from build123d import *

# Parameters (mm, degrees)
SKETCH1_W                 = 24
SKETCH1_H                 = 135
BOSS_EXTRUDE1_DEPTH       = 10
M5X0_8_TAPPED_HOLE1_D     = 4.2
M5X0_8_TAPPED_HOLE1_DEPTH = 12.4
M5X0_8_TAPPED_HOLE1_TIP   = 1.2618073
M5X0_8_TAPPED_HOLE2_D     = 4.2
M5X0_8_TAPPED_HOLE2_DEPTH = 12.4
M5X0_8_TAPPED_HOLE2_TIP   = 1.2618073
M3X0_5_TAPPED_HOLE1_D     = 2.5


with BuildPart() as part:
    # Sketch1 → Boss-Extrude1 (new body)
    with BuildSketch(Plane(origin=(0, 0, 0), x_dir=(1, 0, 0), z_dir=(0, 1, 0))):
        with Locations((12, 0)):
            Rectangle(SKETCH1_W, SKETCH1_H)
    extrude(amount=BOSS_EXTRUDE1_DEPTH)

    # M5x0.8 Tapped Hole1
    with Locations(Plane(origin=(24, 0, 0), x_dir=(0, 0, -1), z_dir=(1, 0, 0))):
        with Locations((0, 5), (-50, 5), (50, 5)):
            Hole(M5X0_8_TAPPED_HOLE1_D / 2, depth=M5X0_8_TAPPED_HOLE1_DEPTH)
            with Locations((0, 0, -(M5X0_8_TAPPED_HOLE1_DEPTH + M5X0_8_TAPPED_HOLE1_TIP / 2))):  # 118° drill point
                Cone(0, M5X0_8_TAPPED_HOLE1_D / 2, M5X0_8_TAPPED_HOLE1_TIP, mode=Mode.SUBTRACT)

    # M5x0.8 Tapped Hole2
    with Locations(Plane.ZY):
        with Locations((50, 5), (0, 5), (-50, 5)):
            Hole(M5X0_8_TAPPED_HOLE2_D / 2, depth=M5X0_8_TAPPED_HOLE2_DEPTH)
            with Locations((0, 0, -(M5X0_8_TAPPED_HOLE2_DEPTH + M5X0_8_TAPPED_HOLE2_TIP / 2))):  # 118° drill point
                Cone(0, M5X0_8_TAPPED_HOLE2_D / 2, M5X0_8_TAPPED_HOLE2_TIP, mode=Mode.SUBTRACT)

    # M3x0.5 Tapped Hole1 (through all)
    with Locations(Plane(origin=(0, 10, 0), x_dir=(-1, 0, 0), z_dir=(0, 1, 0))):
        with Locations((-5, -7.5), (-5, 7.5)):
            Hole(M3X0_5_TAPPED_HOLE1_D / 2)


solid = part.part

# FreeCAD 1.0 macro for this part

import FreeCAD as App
import Part
import Sketcher

V = App.Vector


def add_polygon(sketch, points):
    """Adds a closed chain of lines whose ends are joined by coincident constraints."""
    first, n = sketch.GeometryCount, len(points)
    for a, b in zip(points, points[1:] + points[:1]):
        sketch.addGeometry(Part.LineSegment(App.Vector(*a, 0), App.Vector(*b, 0)), False)
    for i in range(n):
        sketch.addConstraint(Sketcher.Constraint("Coincident", first + i, 2, first + (i + 1) % n, 1))

doc = App.newDocument("Part")
body = doc.addObject("PartDesign::Body", "Body")

# Sketch on XZ plane
sketch1 = doc.addObject("Sketcher::SketchObject", "Sketch")
body.addObject(sketch1)
sketch1.AttachmentSupport = (doc.XZ_Plane, [""])
sketch1.MapMode = "FlatFace"
add_polygon(sketch1, [(0, -68), (0, 68), (24, 68), (24, -68)])  # lines 0-3
sketch1.addConstraint(Sketcher.Constraint("Vertical", 0))
sketch1.addConstraint(Sketcher.Constraint("Horizontal", 1))
sketch1.addConstraint(Sketcher.Constraint("Vertical", 2))
sketch1.addConstraint(Sketcher.Constraint("Horizontal", 3))
sketch1.addConstraint(Sketcher.Constraint("Symmetric", 0, 2, 3, 2, -1, 1))
sketch1.addConstraint(Sketcher.Constraint("DistanceX", 1, 1, 1, 2, 24.0))
sketch1.addConstraint(Sketcher.Constraint("DistanceY", 0, 1, 0, 2, 135.0))
pad1 = doc.addObject("PartDesign::Pad", "Pad")
body.addObject(pad1)
pad1.Profile = sketch1
pad1.Length = 10
pad1.Reversed = True

# Sketch on YZ plane
sketch2 = doc.addObject("Sketcher::SketchObject", "Sketch001")
body.addObject(sketch2)
sketch2.AttachmentSupport = (doc.YZ_Plane, [""])
sketch2.MapMode = "FlatFace"
sketch2.AttachmentOffset = App.Placement(V(0, 0, 24), App.Rotation())
sketch2.addGeometry(Part.Circle(V(5, 0, 0), V(0, 0, 1), 2.1), False)
sketch2.addGeometry(Part.Circle(V(5, 50, 0), V(0, 0, 1), 2.1), False)
sketch2.addGeometry(Part.Circle(V(5, -50, 0), V(0, 0, 1), 2.1), False)
sketch2.addConstraint(Sketcher.Constraint("Equal", 0, 1))
sketch2.addConstraint(Sketcher.Constraint("Equal", 1, 2))
sketch2.addConstraint(Sketcher.Constraint("Symmetric", 1, 3, 2, 3, -1))
sketch2.addConstraint(Sketcher.Constraint("PointOnObject", 0, 3, -1))
sketch2.addConstraint(Sketcher.Constraint("Vertical", 0, 3, 1, 3))
sketch2.addConstraint(Sketcher.Constraint("Diameter", 0, 4.2))
sketch2.addConstraint(Sketcher.Constraint("DistanceX", -1, 1, 0, 3, 5.0))
sketch2.addConstraint(Sketcher.Constraint("DistanceY", -1, 1, 1, 3, 50.0))
doc.recompute()
hole = doc.addObject("PartDesign::Hole", "Hole")
body.addObject(hole)
hole.Profile = sketch2
hole.ThreadType = "None"
hole.Diameter = 4.2
hole.DepthType = "Dimension"
hole.Depth = 12.4
hole.DrillPoint = "Angled"
hole.DrillPointAngle = 118

# Sketch on YZ plane
sketch3 = doc.addObject("Sketcher::SketchObject", "Sketch002")
body.addObject(sketch3)
sketch3.AttachmentSupport = (doc.YZ_Plane, [""])
sketch3.MapMode = "FlatFace"
sketch3.addGeometry(Part.Circle(V(5, 50, 0), V(0, 0, 1), 2.1), False)
sketch3.addGeometry(Part.Circle(V(5, 0, 0), V(0, 0, 1), 2.1), False)
sketch3.addGeometry(Part.Circle(V(5, -50, 0), V(0, 0, 1), 2.1), False)
sketch3.addConstraint(Sketcher.Constraint("Equal", 0, 1))
sketch3.addConstraint(Sketcher.Constraint("Equal", 1, 2))
sketch3.addConstraint(Sketcher.Constraint("Symmetric", 0, 3, 2, 3, -1))
sketch3.addConstraint(Sketcher.Constraint("PointOnObject", 1, 3, -1))
sketch3.addConstraint(Sketcher.Constraint("Vertical", 0, 3, 1, 3))
sketch3.addConstraint(Sketcher.Constraint("Diameter", 0, 4.2))
sketch3.addConstraint(Sketcher.Constraint("DistanceX", -1, 1, 0, 3, 5.0))
sketch3.addConstraint(Sketcher.Constraint("DistanceY", -1, 1, 0, 3, 50.0))
doc.recompute()
hole2 = doc.addObject("PartDesign::Hole", "Hole001")
body.addObject(hole2)
hole2.Profile = sketch3
hole2.ThreadType = "None"
hole2.Diameter = 4.2
hole2.DepthType = "Dimension"
hole2.Depth = 12.4
hole2.DrillPoint = "Angled"
hole2.DrillPointAngle = 118
hole2.Reversed = True

# Sketch on XZ plane
sketch4 = doc.addObject("Sketcher::SketchObject", "Sketch003")
body.addObject(sketch4)
sketch4.AttachmentSupport = (doc.XZ_Plane, [""])
sketch4.MapMode = "FlatFace"
sketch4.AttachmentOffset = App.Placement(V(0, 0, -10), App.Rotation())
sketch4.addGeometry(Part.Circle(V(5, -7.5, 0), V(0, 0, 1), 1.2), False)
sketch4.addGeometry(Part.Circle(V(5, 7.5, 0), V(0, 0, 1), 1.2), False)
sketch4.addConstraint(Sketcher.Constraint("Equal", 0, 1))
sketch4.addConstraint(Sketcher.Constraint("Symmetric", 0, 3, 1, 3, -1))
sketch4.addConstraint(Sketcher.Constraint("Diameter", 0, 2.5))
sketch4.addConstraint(Sketcher.Constraint("DistanceX", -1, 1, 0, 3, 5.0))
sketch4.addConstraint(Sketcher.Constraint("DistanceY", 0, 3, 1, 3, 15.0))
doc.recompute()
hole3 = doc.addObject("PartDesign::Hole", "Hole002")
body.addObject(hole3)
hole3.Profile = sketch4
hole3.ThreadType = "None"
hole3.Diameter = 2.5
hole3.DepthType = "ThroughAll"
hole3.Reversed = True

doc.recompute()
